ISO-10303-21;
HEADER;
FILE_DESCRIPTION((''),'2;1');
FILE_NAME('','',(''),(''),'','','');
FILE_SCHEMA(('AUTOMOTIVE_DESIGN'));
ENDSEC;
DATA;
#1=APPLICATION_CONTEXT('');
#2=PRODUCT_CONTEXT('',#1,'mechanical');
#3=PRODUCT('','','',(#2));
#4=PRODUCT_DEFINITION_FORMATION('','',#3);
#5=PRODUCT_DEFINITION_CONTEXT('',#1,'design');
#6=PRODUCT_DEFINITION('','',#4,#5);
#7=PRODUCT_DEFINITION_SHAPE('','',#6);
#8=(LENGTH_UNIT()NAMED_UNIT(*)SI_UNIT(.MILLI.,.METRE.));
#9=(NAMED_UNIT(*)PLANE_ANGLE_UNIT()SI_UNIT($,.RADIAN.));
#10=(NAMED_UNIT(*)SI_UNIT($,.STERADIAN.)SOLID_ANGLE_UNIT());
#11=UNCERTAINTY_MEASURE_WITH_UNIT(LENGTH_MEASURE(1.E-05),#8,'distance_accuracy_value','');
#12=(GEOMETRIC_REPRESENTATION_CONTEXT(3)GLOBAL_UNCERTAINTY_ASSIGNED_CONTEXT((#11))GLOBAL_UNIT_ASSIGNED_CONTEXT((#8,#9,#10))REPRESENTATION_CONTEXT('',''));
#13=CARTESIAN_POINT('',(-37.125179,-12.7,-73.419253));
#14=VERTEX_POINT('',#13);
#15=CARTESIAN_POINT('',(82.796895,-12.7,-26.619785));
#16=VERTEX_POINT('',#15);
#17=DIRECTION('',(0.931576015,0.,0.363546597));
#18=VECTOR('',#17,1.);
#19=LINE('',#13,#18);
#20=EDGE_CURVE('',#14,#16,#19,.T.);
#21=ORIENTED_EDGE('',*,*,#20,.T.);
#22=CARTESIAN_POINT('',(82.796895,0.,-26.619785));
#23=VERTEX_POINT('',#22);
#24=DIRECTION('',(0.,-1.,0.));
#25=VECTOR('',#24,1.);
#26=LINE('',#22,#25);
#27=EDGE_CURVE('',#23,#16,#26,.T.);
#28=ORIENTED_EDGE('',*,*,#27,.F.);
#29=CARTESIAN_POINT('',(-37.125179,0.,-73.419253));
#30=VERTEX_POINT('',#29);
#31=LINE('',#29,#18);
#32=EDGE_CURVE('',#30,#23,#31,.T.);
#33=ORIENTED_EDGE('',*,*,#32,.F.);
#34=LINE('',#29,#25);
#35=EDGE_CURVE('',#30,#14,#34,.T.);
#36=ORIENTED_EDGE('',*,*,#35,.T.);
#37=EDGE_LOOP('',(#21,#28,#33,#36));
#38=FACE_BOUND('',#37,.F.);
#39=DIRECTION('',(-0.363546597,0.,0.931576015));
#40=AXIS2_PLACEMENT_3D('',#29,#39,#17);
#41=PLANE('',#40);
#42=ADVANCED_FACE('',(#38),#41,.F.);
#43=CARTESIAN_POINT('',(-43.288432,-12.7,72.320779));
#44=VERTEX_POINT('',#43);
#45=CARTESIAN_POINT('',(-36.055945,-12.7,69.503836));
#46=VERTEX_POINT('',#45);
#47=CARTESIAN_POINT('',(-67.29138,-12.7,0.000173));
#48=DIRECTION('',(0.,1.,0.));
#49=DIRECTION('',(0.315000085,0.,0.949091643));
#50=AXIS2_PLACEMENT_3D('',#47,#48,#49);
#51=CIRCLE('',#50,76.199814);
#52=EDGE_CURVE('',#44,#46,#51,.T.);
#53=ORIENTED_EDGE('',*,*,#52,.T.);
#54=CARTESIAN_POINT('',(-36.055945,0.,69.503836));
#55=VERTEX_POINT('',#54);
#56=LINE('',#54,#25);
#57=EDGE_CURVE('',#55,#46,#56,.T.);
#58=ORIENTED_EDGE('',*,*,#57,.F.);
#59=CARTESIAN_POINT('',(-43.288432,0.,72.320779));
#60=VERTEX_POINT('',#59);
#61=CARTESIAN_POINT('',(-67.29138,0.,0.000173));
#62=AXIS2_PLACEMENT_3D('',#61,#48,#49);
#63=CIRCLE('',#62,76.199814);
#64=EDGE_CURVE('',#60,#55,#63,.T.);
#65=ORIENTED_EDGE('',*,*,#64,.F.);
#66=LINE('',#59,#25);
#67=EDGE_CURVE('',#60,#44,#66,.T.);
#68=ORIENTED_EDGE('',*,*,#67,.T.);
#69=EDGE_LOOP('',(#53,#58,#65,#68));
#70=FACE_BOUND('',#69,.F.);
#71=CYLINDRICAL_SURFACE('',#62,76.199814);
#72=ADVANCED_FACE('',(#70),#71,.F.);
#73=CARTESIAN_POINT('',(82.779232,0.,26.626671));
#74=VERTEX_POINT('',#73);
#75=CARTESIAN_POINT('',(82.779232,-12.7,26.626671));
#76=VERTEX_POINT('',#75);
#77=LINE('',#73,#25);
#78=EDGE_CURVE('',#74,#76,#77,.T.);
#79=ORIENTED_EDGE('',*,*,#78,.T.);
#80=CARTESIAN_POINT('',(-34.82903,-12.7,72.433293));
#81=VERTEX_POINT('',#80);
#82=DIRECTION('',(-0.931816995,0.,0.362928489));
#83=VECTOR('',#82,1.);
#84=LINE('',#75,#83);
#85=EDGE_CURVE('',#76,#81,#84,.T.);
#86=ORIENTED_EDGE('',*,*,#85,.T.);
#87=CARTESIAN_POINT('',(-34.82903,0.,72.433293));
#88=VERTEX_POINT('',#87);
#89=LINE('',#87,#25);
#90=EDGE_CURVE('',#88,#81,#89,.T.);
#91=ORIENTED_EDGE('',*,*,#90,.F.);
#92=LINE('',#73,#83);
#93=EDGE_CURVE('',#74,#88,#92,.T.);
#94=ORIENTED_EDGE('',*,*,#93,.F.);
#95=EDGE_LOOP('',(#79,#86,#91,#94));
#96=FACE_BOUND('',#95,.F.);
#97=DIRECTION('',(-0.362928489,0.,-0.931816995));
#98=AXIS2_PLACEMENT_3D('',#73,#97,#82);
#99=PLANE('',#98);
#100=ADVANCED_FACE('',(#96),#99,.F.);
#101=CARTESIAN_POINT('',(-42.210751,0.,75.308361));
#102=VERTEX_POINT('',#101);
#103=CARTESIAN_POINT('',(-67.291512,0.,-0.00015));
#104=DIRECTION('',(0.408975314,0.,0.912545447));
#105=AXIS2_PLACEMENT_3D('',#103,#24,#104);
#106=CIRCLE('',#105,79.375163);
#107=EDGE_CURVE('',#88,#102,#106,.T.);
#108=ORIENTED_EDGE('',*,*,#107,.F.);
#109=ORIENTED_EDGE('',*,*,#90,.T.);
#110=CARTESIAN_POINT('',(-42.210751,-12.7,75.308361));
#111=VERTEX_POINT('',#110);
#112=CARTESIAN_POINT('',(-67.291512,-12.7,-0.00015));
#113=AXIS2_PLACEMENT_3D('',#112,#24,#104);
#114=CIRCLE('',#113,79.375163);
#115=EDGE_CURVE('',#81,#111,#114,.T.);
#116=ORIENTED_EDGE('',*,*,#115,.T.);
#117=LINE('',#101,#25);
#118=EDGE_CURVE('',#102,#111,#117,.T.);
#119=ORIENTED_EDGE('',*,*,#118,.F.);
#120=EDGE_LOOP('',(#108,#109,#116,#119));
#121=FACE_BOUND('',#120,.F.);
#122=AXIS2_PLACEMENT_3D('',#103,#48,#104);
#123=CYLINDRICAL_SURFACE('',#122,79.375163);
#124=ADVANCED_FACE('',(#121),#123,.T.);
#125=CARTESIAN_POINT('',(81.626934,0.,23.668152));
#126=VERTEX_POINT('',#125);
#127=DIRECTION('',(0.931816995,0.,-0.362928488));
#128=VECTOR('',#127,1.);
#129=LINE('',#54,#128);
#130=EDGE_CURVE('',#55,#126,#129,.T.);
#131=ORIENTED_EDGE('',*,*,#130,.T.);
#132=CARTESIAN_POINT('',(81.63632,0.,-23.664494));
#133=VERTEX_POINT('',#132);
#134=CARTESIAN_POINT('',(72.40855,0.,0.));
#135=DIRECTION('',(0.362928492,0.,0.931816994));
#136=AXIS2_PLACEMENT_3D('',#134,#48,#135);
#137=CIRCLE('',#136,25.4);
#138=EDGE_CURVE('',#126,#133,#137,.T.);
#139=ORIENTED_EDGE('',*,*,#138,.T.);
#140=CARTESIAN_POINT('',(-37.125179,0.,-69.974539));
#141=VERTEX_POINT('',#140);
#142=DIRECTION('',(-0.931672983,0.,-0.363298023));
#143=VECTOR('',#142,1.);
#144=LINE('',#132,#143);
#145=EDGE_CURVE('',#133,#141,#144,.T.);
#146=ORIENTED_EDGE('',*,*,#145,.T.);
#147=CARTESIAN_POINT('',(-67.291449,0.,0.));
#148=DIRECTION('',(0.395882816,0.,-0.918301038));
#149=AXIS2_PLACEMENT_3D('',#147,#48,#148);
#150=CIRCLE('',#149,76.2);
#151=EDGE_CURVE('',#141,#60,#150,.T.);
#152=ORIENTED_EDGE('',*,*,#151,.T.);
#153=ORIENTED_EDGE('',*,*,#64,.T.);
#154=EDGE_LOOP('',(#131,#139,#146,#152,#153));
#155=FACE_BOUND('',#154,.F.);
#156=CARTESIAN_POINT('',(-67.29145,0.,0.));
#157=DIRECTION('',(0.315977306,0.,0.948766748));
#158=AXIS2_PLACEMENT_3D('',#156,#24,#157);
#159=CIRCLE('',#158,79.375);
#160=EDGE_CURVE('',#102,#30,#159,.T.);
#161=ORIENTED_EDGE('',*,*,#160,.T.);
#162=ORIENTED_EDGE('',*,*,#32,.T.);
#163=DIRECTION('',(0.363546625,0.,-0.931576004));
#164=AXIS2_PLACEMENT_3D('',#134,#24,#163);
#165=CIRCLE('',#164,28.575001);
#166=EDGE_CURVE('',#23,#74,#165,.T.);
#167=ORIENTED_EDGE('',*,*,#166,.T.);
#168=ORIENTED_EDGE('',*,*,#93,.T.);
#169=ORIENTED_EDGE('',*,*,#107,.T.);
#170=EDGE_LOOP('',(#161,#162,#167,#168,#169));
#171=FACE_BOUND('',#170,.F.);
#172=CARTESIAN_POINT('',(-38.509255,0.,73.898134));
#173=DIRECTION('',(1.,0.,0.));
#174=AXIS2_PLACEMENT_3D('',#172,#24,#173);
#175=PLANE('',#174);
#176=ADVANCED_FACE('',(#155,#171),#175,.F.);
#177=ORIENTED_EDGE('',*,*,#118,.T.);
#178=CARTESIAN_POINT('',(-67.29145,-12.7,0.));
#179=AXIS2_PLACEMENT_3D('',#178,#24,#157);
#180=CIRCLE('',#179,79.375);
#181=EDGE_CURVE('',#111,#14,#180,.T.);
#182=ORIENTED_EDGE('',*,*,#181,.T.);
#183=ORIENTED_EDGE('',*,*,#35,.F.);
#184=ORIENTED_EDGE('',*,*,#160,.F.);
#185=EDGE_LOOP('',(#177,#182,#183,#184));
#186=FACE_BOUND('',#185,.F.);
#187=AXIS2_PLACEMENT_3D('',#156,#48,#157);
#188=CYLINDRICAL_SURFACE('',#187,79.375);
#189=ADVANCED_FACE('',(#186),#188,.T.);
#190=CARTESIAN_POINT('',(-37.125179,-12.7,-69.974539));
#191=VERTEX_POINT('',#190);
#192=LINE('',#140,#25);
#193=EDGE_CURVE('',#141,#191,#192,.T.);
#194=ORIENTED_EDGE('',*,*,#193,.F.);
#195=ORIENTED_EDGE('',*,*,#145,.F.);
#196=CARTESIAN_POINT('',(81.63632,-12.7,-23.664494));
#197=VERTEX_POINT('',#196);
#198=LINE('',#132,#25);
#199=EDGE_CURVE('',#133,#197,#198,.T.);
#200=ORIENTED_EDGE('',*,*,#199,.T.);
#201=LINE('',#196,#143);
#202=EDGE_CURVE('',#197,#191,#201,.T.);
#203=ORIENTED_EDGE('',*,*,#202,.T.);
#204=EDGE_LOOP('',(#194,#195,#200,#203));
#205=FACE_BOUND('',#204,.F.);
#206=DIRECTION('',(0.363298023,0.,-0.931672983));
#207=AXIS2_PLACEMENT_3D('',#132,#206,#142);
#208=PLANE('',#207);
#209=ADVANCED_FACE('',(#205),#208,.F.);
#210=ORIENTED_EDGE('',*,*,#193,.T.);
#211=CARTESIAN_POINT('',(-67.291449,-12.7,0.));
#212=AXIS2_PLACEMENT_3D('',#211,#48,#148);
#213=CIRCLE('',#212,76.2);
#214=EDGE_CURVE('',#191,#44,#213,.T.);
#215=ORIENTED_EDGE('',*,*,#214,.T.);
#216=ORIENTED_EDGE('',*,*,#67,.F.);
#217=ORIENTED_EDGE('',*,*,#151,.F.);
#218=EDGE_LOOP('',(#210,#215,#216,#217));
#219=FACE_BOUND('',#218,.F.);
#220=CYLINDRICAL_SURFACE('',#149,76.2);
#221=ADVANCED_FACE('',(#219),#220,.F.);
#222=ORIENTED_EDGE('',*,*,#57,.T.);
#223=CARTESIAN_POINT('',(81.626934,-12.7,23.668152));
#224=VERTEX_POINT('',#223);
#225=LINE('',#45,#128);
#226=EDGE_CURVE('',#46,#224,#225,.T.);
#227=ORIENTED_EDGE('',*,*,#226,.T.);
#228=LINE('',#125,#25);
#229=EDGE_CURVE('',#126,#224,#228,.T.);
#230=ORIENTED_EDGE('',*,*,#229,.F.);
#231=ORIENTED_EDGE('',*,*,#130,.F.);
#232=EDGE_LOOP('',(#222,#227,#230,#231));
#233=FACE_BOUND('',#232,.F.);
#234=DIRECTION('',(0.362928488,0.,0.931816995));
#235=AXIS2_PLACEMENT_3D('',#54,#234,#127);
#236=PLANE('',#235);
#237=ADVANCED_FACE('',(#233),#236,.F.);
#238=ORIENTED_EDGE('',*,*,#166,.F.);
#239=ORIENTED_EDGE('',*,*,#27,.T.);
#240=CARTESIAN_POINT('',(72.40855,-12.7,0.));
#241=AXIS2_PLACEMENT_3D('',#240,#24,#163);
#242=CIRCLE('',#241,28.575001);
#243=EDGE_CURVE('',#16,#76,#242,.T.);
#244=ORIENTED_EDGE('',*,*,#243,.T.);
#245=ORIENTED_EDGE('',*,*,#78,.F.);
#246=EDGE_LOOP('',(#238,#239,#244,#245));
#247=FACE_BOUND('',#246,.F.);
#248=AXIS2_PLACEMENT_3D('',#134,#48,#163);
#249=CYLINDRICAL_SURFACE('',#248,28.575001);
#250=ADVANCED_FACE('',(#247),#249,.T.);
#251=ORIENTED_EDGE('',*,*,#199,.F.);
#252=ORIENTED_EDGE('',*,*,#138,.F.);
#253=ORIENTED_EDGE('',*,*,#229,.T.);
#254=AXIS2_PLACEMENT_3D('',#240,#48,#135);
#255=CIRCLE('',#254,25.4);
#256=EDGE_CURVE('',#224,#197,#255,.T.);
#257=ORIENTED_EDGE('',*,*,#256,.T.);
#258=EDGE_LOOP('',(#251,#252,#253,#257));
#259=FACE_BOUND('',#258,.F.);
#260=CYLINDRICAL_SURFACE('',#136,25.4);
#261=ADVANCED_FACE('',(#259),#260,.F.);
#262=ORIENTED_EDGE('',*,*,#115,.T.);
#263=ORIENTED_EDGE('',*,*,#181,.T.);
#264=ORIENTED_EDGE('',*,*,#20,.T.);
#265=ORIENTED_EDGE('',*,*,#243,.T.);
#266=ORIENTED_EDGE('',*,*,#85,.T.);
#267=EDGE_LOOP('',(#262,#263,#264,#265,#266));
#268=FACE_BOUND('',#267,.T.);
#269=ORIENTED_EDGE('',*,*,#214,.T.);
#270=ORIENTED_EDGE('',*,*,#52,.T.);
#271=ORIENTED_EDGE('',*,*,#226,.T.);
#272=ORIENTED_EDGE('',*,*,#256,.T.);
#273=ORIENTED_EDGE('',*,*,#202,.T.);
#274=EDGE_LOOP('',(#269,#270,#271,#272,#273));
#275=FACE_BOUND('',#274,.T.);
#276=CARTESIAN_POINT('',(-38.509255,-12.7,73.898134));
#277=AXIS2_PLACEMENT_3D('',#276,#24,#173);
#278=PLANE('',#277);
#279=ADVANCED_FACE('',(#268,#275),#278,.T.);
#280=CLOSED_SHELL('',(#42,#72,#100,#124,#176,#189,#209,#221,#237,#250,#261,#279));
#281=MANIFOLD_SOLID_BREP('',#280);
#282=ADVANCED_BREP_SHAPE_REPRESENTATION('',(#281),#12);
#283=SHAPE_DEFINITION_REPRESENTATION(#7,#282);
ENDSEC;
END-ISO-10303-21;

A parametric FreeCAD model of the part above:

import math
import FreeCAD as App
import Part
import Sketcher
from FreeCAD import Vector
Q = App.Units.Quantity

doc = App.newDocument("Part")
body = doc.addObject("PartDesign::Body", "Body")

# Sketch on XZ plane
sketch1 = body.newObject("Sketcher::SketchObject", "Sketch")
sketch1.AttachmentSupport = (doc.getObject("XZ_Plane"), [""])
sketch1.MapMode = "FlatFace"
sketch1.addGeometry(Part.ArcOfCircle(Part.Circle(Vector(-67.291512, -0.00015, 0), Vector(0, 0, 1), 79.375163), math.radians(65.859518), math.radians(71.580169)), False)
sketch1.addGeometry(Part.ArcOfCircle(Part.Circle(Vector(-67.29145, 0, 0), Vector(0, 0, 1), 79.375), math.radians(71.580177), math.radians(292.336625)), False)
sketch1.addGeometry(Part.LineSegment(Vector(-37.125179, -73.419253, 0), Vector(82.796895, -26.619785, 0)), False)
sketch1.addGeometry(Part.ArcOfCircle(Part.Circle(Vector(72.40855, 0, 0), Vector(0, 0, 1), 28.575001), math.radians(-68.681833), math.radians(68.719846)), False)
sketch1.addGeometry(Part.LineSegment(Vector(82.779232, 26.626671, 0), Vector(-34.82903, 72.433293, 0)), False)
sketch1.addGeometry(Part.ArcOfCircle(Part.Circle(Vector(-67.291449, 0, 0), Vector(0, 0, 1), 76.2), math.radians(71.639172), math.radians(293.321044)), False)
sketch1.addGeometry(Part.ArcOfCircle(Part.Circle(Vector(-67.29138, 0.000173, 0), Vector(0, 0, 1), 76.199814), math.radians(65.800514), math.radians(71.639181)), False)
sketch1.addGeometry(Part.LineSegment(Vector(-36.055945, 69.503836, 0), Vector(81.626934, 23.668152, 0)), False)
sketch1.addGeometry(Part.ArcOfCircle(Part.Circle(Vector(72.40855, 0, 0), Vector(0, 0, 1), 25.4), math.radians(-68.697123), math.radians(68.719846)), False)
sketch1.addGeometry(Part.LineSegment(Vector(81.63632, -23.664494, 0), Vector(-37.125179, -69.974539, 0)), False)
sketch1.addConstraint(Sketcher.Constraint("Coincident", 0, 2, 1, 1))
sketch1.addConstraint(Sketcher.Constraint("Coincident", 1, 2, 2, 1))
sketch1.addConstraint(Sketcher.Constraint("Coincident", 2, 2, 3, 1))
sketch1.addConstraint(Sketcher.Constraint("Coincident", 3, 2, 4, 1))
sketch1.addConstraint(Sketcher.Constraint("Coincident", 4, 2, 0, 1))
sketch1.addConstraint(Sketcher.Constraint("Coincident", 5, 1, 6, 2))
sketch1.addConstraint(Sketcher.Constraint("Coincident", 6, 1, 7, 1))
sketch1.addConstraint(Sketcher.Constraint("Coincident", 7, 2, 8, 2))
sketch1.addConstraint(Sketcher.Constraint("Coincident", 8, 1, 9, 1))
sketch1.addConstraint(Sketcher.Constraint("Coincident", 9, 2, 5, 2))
sketch1.addConstraint(Sketcher.Constraint("Coincident", 5, 3, 1, 3))
sketch1.addConstraint(Sketcher.Constraint("Coincident", 8, 3, 3, 3))
sketch1.addConstraint(Sketcher.Constraint("PointOnObject", 1, 3, -1))
sketch1.addConstraint(Sketcher.Constraint("PointOnObject", 3, 3, -1))
sketch1.addConstraint(Sketcher.Constraint("Radius", 5, Q("3 in")))
sketch1.addConstraint(Sketcher.Constraint("Radius", 8, Q("1 in")))
sketch1.addConstraint(Sketcher.Constraint("Radius", 1, Q("3.125 in")))
sketch1.addConstraint(Sketcher.Constraint("Radius", 3, Q("1.125 in")))
sketch1.addConstraint(Sketcher.Constraint("DistanceX", 1, 3, 3, 3, Q("5.5 in")))
sketch1.addConstraint(Sketcher.Constraint("Radius", 0, 79.375163))
sketch1.addConstraint(Sketcher.Constraint("Radius", 6, 76.199814))
sketch1.addConstraint(Sketcher.Constraint("DistanceX", 1, 3, 0, 2, 25.080699))
sketch1.addConstraint(Sketcher.Constraint("DistanceX", 6, 3, 1, 2, 30.166201))
sketch1.addConstraint(Sketcher.Constraint("DistanceY", 6, 3, 3, 2, 26.626498))
sketch1.addConstraint(Sketcher.Constraint("DistanceX", 5, 1, 4, 2, 8.459402))
sketch1.addConstraint(Sketcher.Constraint("DistanceX", 6, 3, 9, 2, 30.166201))
sketch1.addConstraint(Sketcher.Constraint("DistanceY", 0, 3, -1, 1, 0.00015))
sketch1.addConstraint(Sketcher.Constraint("DistanceX", 1, 3, -1, 1, 67.29145))
sketch1.addConstraint(Sketcher.Constraint("DistanceX", 6, 3, -1, 1, 67.29138))
sketch1.addConstraint(Sketcher.Constraint("DistanceX", 4, 2, -1, 1, 34.82903))
sketch1.addConstraint(Sketcher.Constraint("DistanceY", -1, 1, 7, 2, 23.668152))
sketch1.addConstraint(Sketcher.Constraint("DistanceX", -1, 1, 8, 1, 81.63632))
sketch1.addConstraint(Sketcher.Constraint("DistanceX", 7, 2, 2, 2, 1.169961))
sketch1.addConstraint(Sketcher.Constraint("Distance", 7, 126.293982))
pad1 = body.newObject("PartDesign::Pad", "Pad")
pad1.Profile = sketch1
pad1.Length = Q("0.5 in")

doc.recompute()
